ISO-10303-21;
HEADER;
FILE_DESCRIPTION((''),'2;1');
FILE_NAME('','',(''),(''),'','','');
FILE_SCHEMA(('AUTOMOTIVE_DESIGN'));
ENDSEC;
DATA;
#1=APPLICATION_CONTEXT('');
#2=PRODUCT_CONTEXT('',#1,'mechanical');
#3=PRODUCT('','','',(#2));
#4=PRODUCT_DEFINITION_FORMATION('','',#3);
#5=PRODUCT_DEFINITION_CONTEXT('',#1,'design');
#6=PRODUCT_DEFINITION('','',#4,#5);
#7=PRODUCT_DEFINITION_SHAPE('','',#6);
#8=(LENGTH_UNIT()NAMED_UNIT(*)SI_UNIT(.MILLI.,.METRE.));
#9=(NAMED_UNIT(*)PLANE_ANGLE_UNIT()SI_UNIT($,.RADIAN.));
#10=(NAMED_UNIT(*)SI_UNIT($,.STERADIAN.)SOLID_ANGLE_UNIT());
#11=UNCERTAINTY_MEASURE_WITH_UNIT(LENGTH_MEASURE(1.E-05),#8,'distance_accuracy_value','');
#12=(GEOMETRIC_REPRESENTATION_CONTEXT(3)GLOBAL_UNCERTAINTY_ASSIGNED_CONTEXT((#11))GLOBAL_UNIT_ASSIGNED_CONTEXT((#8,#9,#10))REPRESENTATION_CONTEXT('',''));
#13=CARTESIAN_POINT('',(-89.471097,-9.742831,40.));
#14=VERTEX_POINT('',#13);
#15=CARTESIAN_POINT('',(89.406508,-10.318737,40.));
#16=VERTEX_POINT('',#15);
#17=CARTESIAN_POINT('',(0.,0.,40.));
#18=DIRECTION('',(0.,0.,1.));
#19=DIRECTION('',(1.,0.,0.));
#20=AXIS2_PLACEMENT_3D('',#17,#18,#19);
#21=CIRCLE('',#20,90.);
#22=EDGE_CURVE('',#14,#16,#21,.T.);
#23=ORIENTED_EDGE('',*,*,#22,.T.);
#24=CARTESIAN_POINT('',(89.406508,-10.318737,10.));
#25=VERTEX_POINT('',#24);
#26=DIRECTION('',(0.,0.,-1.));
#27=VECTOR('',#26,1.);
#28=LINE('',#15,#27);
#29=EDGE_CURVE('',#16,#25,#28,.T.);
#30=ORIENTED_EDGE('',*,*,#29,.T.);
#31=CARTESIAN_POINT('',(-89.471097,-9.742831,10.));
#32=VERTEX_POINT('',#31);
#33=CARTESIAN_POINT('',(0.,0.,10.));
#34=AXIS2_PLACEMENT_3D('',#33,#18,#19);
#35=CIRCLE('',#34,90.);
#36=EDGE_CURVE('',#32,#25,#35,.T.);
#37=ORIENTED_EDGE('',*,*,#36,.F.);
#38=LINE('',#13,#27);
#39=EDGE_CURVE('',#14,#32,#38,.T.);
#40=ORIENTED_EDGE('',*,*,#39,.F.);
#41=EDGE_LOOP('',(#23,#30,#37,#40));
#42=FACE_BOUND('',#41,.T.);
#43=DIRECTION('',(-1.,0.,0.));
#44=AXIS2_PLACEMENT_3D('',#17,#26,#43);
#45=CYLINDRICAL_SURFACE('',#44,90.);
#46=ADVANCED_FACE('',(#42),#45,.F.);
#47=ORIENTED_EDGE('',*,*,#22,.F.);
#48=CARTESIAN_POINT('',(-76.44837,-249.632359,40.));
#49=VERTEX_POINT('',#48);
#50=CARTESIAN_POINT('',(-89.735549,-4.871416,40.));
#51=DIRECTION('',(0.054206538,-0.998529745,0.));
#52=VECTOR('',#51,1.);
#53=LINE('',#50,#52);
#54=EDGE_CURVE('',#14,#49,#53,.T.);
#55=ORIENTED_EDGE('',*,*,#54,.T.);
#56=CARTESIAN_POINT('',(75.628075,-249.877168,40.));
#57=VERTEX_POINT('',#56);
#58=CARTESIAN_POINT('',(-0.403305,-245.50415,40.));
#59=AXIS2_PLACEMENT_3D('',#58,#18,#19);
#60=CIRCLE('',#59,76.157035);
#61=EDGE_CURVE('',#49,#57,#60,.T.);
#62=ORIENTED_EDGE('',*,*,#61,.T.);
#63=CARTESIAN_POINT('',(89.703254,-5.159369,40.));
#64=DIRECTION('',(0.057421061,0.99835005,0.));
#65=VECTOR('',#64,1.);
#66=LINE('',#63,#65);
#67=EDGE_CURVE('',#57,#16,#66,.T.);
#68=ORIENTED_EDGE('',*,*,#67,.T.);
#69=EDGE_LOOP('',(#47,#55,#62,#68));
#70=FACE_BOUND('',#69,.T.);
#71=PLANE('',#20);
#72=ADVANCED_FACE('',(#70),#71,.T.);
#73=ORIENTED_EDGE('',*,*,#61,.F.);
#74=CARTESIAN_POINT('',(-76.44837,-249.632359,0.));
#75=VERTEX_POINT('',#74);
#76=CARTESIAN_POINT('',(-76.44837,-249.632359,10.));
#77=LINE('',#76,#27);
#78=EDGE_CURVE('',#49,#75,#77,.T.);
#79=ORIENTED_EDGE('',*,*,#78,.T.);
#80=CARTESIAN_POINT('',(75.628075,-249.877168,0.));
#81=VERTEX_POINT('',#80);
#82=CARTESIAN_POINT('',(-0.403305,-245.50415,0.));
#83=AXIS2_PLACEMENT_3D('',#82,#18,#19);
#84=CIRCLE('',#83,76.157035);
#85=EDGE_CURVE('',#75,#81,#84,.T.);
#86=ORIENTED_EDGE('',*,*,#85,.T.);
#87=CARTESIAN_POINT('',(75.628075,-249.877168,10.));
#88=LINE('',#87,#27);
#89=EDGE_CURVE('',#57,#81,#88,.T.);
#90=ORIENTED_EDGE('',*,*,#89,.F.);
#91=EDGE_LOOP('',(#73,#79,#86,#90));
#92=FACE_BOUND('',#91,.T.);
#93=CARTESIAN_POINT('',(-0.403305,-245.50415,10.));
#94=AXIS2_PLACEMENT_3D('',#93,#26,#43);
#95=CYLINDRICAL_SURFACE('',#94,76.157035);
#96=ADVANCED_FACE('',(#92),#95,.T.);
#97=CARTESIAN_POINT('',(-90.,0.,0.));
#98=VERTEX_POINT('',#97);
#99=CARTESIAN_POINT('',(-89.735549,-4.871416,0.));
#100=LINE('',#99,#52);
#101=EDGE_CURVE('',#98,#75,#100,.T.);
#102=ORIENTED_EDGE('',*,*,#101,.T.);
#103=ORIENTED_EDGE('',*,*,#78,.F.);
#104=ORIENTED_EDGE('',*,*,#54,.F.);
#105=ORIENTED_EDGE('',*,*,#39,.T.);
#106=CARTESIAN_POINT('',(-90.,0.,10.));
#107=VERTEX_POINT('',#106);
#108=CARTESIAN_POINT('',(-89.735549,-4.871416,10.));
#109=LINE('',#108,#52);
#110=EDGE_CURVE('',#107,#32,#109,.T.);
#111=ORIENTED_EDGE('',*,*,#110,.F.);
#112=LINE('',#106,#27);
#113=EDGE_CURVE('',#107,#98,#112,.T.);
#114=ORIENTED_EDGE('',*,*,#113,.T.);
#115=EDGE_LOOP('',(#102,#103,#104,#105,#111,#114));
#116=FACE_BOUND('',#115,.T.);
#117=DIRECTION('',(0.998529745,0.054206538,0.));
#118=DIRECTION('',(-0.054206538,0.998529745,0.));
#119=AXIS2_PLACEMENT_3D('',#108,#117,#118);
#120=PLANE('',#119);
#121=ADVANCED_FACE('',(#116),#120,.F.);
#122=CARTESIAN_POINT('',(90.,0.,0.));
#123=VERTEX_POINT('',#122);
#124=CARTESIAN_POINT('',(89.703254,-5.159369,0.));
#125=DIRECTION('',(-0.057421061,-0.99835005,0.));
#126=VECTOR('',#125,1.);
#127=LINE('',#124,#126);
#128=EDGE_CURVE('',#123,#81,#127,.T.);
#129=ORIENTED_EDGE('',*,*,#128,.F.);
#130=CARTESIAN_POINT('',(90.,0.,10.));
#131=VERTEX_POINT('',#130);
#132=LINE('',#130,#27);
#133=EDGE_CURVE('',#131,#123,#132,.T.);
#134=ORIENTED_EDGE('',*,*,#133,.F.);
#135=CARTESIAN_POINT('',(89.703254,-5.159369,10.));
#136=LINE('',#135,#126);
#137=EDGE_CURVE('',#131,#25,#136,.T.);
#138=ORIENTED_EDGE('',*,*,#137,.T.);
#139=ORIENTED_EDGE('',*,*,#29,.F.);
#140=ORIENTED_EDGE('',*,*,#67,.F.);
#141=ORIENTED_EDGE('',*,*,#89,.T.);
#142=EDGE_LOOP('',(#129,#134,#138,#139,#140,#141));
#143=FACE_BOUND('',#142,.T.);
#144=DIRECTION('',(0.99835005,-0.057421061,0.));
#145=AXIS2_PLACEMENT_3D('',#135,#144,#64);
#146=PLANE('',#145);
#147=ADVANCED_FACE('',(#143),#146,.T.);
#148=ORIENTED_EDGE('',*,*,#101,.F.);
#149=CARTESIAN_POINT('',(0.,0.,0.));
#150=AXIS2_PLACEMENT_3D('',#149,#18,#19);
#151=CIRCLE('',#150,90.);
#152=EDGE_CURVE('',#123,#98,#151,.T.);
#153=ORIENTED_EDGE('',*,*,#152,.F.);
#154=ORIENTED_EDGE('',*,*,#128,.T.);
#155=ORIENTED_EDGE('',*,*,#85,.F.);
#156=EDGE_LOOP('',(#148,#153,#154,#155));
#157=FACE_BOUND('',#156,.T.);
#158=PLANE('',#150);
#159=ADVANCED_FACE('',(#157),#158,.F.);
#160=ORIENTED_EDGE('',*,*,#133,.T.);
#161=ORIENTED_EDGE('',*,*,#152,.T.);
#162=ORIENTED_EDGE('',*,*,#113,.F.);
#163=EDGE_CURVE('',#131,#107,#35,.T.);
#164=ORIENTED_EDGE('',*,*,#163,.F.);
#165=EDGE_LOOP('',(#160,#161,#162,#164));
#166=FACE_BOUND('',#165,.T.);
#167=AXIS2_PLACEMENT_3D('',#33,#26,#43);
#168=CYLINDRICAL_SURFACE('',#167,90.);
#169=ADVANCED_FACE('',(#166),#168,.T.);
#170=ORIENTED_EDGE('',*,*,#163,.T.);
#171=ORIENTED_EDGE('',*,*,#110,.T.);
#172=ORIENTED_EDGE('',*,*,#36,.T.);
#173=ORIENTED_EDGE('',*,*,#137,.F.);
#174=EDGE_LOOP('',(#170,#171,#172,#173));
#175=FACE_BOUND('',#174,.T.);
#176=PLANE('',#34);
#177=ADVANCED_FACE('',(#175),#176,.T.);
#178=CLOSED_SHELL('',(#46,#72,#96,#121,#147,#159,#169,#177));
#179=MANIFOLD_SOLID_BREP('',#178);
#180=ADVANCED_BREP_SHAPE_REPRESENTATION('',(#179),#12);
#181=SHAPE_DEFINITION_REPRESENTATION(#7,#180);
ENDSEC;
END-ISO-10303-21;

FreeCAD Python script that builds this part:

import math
import FreeCAD as App
import Part
import Sketcher
Q = App.Units.Quantity

doc = App.newDocument("Part")
params = doc.addObject("Spreadsheet::Sheet", "Params")
for row, (alias, value) in enumerate([
    ("sketch1_radius", "90 mm"),
    ("pad1_length", "10 mm"),
    ("sketch2_radius", "90 mm"),
    ("pad2_length", "30 mm"),
], start=1):
    params.set(f"A{row}", alias)
    params.set(f"B{row}", "=" + value)
    params.setAlias(f"B{row}", alias)

body = doc.addObject("PartDesign::Body", "Body")

sketch1 = body.newObject("Sketcher::SketchObject", "Sketch")
sketch1.AttachmentSupport = (doc.getObject("XY_Plane"), [""])
sketch1.MapMode = "FlatFace"
sketch1.addGeometry([
    Part.ArcOfCircle(Part.Circle(App.Vector(0, 0, 0), App.Vector(0, 0, 1), 90), math.radians(0), math.radians(180)),
    Part.LineSegment(App.Vector(-90, 0, 0), App.Vector(-89, -10, 0)),
    Part.LineSegment(App.Vector(-89, -10, 0), App.Vector(-76, -250, 0)),
    Part.ArcOfCircle(Part.Circle(App.Vector(0, -246, 0), App.Vector(0, 0, 1), 76), math.radians(-177), math.radians(-3)),
    Part.LineSegment(App.Vector(76, -250, 0), App.Vector(89, -10, 0)),
    Part.LineSegment(App.Vector(89, -10, 0), App.Vector(90, 0, 0)),
], False)
sketch1.addConstraint([
    Sketcher.Constraint("Coincident", 0, 2, 1, 1),
    Sketcher.Constraint("Coincident", 1, 2, 2, 1),
    Sketcher.Constraint("Tangent", 2, 2, 3, 1),
    Sketcher.Constraint("Tangent", 3, 2, 4, 1),
    Sketcher.Constraint("Coincident", 4, 2, 5, 1),
    Sketcher.Constraint("Coincident", 5, 2, 0, 1),
    Sketcher.Constraint("Coincident", 0, 3, -1, 1),
    Sketcher.Constraint("PointOnObject", 0, 2, -1),
    Sketcher.Constraint("PointOnObject", 5, 2, -1),
    Sketcher.Constraint("Parallel", 1, 2),
    Sketcher.Constraint("Parallel", 4, 5),
    Sketcher.Constraint("Radius", 0, Q("90 mm")),
    Sketcher.Constraint("Radius", 3, Q("76.157035 mm")),
    Sketcher.Constraint("Distance", 5, Q("10.335791 mm")),
    Sketcher.Constraint("DistanceY", 3, 3, -1, 1, Q("245.50415 mm")),
    Sketcher.Constraint("DistanceY", 1, 2, -1, 1, Q("9.742831 mm")),
    Sketcher.Constraint("DistanceX", 2, 2, -1, 1, Q("76.44837 mm")),
])
sketch1.setExpression("Constraints[11]", "Params.sketch1_radius")
pad1 = body.newObject("PartDesign::Pad", "Pad")
pad1.Profile = sketch1
pad1.setExpression("Length", "Params.pad1_length")

sketch2 = body.newObject("Sketcher::SketchObject", "Sketch001")
sketch2.AttachmentSupport = (doc.getObject("XY_Plane"), [""])
sketch2.MapMode = "FlatFace"
sketch2.AttachmentOffset = App.Placement(App.Vector(0, 0, 10), App.Rotation())
sketch2.addGeometry([
    Part.ArcOfCircle(Part.Circle(App.Vector(0, 0, 0), App.Vector(0, 0, 1), 90), math.radians(-174), math.radians(-7)),
    Part.LineSegment(App.Vector(-89, -10, 0), App.Vector(-76, -250, 0)),
    Part.ArcOfCircle(Part.Circle(App.Vector(0, -246, 0), App.Vector(0, 0, 1), 76), math.radians(-177), math.radians(-3)),
    Part.LineSegment(App.Vector(76, -250, 0), App.Vector(89, -10, 0)),
], False)
sketch2.addConstraint([
    Sketcher.Constraint("Coincident", 0, 1, 1, 1),
    Sketcher.Constraint("Tangent", 1, 2, 2, 1),
    Sketcher.Constraint("Tangent", 2, 2, 3, 1),
    Sketcher.Constraint("Coincident", 3, 2, 0, 2),
    Sketcher.Constraint("Coincident", 0, 3, -1, 1),
    Sketcher.Constraint("Radius", 0, Q("90 mm")),
    Sketcher.Constraint("Radius", 2, Q("76.157035 mm")),
    Sketcher.Constraint("DistanceY", 2, 3, -1, 1, Q("245.50415 mm")),
    Sketcher.Constraint("DistanceY", 0, 1, -1, 1, Q("9.742831 mm")),
    Sketcher.Constraint("DistanceX", 1, 2, -1, 1, Q("76.44837 mm")),
    Sketcher.Constraint("DistanceY", 2, 2, 3, 2, Q("239.558431 mm")),
])
sketch2.setExpression("Constraints[5]", "Params.sketch2_radius")
pad2 = body.newObject("PartDesign::Pad", "Pad001")
pad2.Profile = sketch2
pad2.setExpression("Length", "Params.pad2_length")

doc.recompute()
